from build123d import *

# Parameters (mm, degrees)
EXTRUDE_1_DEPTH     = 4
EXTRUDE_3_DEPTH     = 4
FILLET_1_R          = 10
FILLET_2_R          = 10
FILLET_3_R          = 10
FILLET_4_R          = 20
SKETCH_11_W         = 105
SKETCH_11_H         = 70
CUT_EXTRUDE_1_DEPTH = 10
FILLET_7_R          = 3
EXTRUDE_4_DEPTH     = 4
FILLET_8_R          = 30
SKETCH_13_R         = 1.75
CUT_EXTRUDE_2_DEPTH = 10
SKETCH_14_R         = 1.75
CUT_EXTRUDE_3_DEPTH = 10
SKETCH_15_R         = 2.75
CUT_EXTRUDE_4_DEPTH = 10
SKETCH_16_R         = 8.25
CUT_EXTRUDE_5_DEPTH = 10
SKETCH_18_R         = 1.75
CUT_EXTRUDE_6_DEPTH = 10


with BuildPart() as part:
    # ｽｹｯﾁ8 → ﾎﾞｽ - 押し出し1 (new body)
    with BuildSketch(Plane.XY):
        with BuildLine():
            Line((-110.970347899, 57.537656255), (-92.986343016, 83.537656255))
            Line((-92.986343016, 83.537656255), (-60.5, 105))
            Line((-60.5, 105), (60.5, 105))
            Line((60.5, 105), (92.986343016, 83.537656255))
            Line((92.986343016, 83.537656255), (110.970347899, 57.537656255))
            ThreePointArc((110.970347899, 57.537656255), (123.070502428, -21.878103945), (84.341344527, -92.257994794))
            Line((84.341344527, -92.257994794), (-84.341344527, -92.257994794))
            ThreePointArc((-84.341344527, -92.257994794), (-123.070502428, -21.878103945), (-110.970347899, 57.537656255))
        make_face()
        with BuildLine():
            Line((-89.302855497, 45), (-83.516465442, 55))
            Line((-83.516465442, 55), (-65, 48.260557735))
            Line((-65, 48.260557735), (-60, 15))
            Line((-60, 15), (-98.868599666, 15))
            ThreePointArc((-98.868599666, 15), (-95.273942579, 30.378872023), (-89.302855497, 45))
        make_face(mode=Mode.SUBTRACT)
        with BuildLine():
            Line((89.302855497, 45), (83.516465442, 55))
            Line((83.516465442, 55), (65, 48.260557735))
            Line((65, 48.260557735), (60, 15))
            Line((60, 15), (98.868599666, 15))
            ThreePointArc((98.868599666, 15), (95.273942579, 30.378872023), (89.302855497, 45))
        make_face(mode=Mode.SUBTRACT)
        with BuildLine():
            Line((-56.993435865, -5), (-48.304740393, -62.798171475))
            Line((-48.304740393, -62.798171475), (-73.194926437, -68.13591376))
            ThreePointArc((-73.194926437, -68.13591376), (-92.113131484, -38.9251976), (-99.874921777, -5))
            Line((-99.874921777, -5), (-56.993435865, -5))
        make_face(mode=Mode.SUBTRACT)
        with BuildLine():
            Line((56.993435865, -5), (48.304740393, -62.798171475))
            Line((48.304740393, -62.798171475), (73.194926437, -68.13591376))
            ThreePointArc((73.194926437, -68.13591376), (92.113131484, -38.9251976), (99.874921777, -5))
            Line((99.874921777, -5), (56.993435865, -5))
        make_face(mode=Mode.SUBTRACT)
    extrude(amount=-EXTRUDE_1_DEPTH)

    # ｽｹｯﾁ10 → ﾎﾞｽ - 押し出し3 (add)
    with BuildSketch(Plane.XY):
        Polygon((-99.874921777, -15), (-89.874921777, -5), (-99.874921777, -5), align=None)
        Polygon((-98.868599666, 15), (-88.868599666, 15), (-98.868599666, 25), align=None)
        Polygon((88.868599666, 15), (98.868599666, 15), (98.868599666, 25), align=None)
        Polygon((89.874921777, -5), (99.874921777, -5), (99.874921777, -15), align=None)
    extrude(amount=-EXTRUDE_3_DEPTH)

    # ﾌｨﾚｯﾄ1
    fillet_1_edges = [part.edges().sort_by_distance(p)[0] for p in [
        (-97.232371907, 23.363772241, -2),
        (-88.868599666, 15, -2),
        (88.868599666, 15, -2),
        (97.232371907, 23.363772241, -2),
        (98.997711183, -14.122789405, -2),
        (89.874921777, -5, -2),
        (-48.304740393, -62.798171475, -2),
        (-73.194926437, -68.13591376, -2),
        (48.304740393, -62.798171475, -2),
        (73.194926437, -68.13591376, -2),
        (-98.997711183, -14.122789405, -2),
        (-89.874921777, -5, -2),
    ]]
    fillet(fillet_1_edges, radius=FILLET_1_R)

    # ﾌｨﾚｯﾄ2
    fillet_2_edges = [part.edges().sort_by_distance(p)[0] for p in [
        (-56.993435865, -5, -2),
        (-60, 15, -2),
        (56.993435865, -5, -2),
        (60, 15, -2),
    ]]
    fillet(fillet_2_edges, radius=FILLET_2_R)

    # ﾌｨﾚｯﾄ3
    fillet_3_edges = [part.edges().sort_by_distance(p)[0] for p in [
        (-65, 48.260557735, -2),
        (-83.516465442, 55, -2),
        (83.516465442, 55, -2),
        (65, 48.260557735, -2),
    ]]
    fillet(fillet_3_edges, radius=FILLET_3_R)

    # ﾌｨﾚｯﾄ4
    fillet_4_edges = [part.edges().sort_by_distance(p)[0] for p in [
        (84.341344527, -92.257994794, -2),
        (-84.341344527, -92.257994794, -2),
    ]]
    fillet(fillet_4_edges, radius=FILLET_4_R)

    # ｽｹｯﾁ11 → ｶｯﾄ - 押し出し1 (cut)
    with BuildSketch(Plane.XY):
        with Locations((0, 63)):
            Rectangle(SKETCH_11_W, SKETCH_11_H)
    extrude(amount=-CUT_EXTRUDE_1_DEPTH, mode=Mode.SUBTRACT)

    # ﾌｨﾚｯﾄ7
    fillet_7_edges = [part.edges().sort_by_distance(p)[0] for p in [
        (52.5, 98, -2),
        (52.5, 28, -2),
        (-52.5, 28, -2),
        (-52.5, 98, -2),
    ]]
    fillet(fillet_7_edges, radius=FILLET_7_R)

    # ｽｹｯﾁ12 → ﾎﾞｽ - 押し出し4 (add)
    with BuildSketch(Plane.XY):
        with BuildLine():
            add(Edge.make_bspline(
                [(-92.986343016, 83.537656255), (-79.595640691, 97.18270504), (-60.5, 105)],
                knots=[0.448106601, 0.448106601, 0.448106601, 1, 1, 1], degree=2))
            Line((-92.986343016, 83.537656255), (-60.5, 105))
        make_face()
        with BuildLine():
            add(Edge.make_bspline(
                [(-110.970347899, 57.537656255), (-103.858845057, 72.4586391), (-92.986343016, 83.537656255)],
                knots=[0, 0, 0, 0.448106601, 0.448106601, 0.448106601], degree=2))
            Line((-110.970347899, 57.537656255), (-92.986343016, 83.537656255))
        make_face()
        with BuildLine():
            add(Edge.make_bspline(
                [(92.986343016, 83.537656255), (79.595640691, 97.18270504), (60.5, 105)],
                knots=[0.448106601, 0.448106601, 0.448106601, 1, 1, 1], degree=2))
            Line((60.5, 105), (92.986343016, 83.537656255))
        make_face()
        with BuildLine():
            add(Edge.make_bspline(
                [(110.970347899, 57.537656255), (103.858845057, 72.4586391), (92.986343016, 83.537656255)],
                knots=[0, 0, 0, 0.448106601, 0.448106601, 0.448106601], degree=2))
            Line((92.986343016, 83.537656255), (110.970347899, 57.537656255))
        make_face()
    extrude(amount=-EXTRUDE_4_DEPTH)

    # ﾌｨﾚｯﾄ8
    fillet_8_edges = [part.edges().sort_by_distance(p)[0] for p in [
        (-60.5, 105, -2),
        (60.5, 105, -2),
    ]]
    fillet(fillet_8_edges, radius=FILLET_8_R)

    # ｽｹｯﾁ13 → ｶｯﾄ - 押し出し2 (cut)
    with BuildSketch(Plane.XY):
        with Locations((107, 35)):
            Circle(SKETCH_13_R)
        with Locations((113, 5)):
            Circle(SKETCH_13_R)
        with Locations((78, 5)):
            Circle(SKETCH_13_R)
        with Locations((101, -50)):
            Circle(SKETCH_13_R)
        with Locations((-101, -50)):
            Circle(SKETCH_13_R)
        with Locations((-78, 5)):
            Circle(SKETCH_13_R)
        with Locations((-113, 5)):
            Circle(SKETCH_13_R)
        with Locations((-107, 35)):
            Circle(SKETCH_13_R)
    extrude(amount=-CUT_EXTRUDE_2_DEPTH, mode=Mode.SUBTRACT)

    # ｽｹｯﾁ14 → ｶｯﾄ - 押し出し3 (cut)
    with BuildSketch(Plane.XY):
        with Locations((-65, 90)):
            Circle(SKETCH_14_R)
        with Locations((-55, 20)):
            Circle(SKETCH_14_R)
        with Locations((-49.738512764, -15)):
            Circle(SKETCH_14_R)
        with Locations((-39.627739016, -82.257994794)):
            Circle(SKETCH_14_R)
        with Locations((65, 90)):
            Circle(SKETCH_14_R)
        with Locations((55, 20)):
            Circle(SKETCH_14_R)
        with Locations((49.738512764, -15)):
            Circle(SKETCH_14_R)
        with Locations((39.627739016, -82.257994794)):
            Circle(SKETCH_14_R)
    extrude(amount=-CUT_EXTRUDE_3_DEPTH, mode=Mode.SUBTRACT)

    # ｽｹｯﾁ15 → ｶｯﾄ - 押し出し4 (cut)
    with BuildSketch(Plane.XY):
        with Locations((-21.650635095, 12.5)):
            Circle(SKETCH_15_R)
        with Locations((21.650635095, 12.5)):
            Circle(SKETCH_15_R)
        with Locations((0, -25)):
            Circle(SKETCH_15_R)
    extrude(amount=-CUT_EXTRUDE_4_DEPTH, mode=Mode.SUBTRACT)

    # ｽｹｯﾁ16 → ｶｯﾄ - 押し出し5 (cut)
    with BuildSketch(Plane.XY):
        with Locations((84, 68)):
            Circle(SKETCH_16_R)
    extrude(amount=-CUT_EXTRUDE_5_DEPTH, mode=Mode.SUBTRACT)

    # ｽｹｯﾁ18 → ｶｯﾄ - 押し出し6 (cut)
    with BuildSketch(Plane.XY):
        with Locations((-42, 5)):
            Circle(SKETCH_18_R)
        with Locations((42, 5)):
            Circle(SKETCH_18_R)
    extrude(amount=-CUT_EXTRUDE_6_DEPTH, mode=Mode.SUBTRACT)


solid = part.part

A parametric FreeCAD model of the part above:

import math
import FreeCAD as App
import Part
import Sketcher

V = App.Vector
Q = App.Units.Quantity


def edges_at(feature, points):
    """Names of the edges that pass closest to the given points."""
    edges = feature.Shape.Edges
    near = lambda p: min(range(len(edges)), key=lambda i: edges[i].distToShape(Part.Vertex(*p))[0])
    return sorted({f"Edge{near(p) + 1}" for p in points})

doc = App.newDocument("Part")
params = doc.addObject("Spreadsheet::Sheet", "Params")
for row, (alias, value) in enumerate([
    ("sketch1_radius", "125 mm"),
    ("sketch1_radius2", "100 mm"),
    ("sketch1_width", "121 mm"),
    ("pad1_length", "4 mm"),
    ("sketch2_width", "10 mm"),
    ("pad2_length", "4 mm"),
    ("fillet_radius", "10 mm"),
    ("fillet2_radius", "10 mm"),
    ("fillet3_radius", "10 mm"),
    ("fillet4_radius", "20 mm"),
    ("sketch3_width", "105 mm"),
    ("sketch3_height", "70 mm"),
    ("pocket1_length", "10 mm"),
    ("fillet5_radius", "3 mm"),
    ("pad3_length", "4 mm"),
    ("fillet6_radius", "30 mm"),
    ("sketch5_diameter", "3.5 mm"),
    ("pocket2_length", "10 mm"),
    ("sketch6_diameter", "3.5 mm"),
    ("pocket3_length", "10 mm"),
    ("sketch7_diameter", "5.5 mm"),
    ("pocket4_length", "10 mm"),
    ("sketch8_diameter", "16.5 mm"),
    ("pocket5_length", "10 mm"),
    ("sketch9_diameter", "3.5 mm"),
    ("pocket6_length", "10 mm"),
], start=1):
    params.set(f"A{row}", alias)
    params.set(f"B{row}", "=" + value)
    params.setAlias(f"B{row}", alias)

body = doc.addObject("PartDesign::Body", "Body")

# Sketch on XY plane
sketch1 = doc.addObject("Sketcher::SketchObject", "Sketch")
body.addObject(sketch1)
sketch1.AttachmentSupport = (doc.XY_Plane, [""])
sketch1.MapMode = "FlatFace"
sketch1.addGeometry([
    Part.LineSegment(V(-93, 84, 0), V(-111, 58, 0)),  # 0
    Part.ArcOfCircle(Part.Circle(V(0, 0, 0), V(0, 0, 1), 125), math.radians(153), math.radians(228)),  # 1
    Part.LineSegment(V(-84, -92, 0), V(84, -92, 0)),  # 2
    Part.ArcOfCircle(Part.Circle(V(0, 0, 0), V(0, 0, 1), 125), math.radians(-48), math.radians(27)),  # 3
    Part.LineSegment(V(111, 58, 0), V(93, 84, 0)),  # 4
    Part.LineSegment(V(93, 84, 0), V(60, 105, 0)),  # 5
    Part.LineSegment(V(60, 105, 0), V(-60, 105, 0)),  # 6
    Part.LineSegment(V(-60, 105, 0), V(-93, 84, 0)),  # 7
    Part.LineSegment(V(57, -5, 0), V(100, -5, 0)),  # 8
    Part.ArcOfCircle(Part.Circle(V(0, 0, 0), V(0, 0, 1), 100), math.radians(-43), math.radians(-3)),  # 9
    Part.LineSegment(V(73, -68, 0), V(48, -63, 0)),  # 10
    Part.LineSegment(V(48, -63, 0), V(57, -5, 0)),  # 11
    Part.LineSegment(V(-57, -5, 0), V(-48, -63, 0)),  # 12
    Part.LineSegment(V(-48, -63, 0), V(-73, -68, 0)),  # 13
    Part.ArcOfCircle(Part.Circle(V(0, 0, 0), V(0, 0, 1), 100), math.radians(-177), math.radians(-137)),  # 14
    Part.LineSegment(V(-100, -5, 0), V(-57, -5, 0)),  # 15
    Part.ArcOfCircle(Part.Circle(V(0, 0, 0), V(0, 0, 1), 100), math.radians(8.63), math.radians(26.74)),  # 16
    Part.LineSegment(V(99, 15, 0), V(60, 15, 0)),  # 17
    Part.LineSegment(V(60, 15, 0), V(65, 48, 0)),  # 18
    Part.LineSegment(V(65, 48, 0), V(84, 55, 0)),  # 19
    Part.LineSegment(V(84, 55, 0), V(89, 45, 0)),  # 20
    Part.LineSegment(V(-89, 45, 0), V(-84, 55, 0)),  # 21
    Part.LineSegment(V(-84, 55, 0), V(-65, 48, 0)),  # 22
    Part.LineSegment(V(-65, 48, 0), V(-60, 15, 0)),  # 23
    Part.LineSegment(V(-60, 15, 0), V(-99, 15, 0)),  # 24
    Part.ArcOfCircle(Part.Circle(V(0, 0, 0), V(0, 0, 1), 100), math.radians(153.26), math.radians(171.37)),  # 25
], False)
sketch1.addConstraint([
    Sketcher.Constraint("Coincident", 0, 2, 1, 1),
    Sketcher.Constraint("Coincident", 1, 2, 2, 1),
    Sketcher.Constraint("Coincident", 2, 2, 3, 1),
    Sketcher.Constraint("Coincident", 3, 2, 4, 1),
    Sketcher.Constraint("Coincident", 4, 2, 5, 1),
    Sketcher.Constraint("Coincident", 5, 2, 6, 1),
    Sketcher.Constraint("Coincident", 6, 2, 7, 1),
    Sketcher.Constraint("Coincident", 7, 2, 0, 1),
    Sketcher.Constraint("Coincident", 8, 2, 9, 2),
    Sketcher.Constraint("Coincident", 9, 1, 10, 1),
    Sketcher.Constraint("Coincident", 10, 2, 11, 1),
    Sketcher.Constraint("Coincident", 11, 2, 8, 1),
    Sketcher.Constraint("Coincident", 12, 2, 13, 1),
    Sketcher.Constraint("Coincident", 13, 2, 14, 2),
    Sketcher.Constraint("Coincident", 14, 1, 15, 1),
    Sketcher.Constraint("Coincident", 15, 2, 12, 1),
    Sketcher.Constraint("Coincident", 16, 1, 17, 1),
    Sketcher.Constraint("Coincident", 17, 2, 18, 1),
    Sketcher.Constraint("Coincident", 18, 2, 19, 1),
    Sketcher.Constraint("Coincident", 19, 2, 20, 1),
    Sketcher.Constraint("Coincident", 20, 2, 16, 2),
    Sketcher.Constraint("Coincident", 21, 2, 22, 1),
    Sketcher.Constraint("Coincident", 22, 2, 23, 1),
    Sketcher.Constraint("Coincident", 23, 2, 24, 1),
    Sketcher.Constraint("Coincident", 24, 2, 25, 2),
    Sketcher.Constraint("Coincident", 25, 1, 21, 1),
    Sketcher.Constraint("Horizontal", 2),
    Sketcher.Constraint("Horizontal", 6),
    Sketcher.Constraint("Horizontal", 8),
    Sketcher.Constraint("Horizontal", 15),
    Sketcher.Constraint("Horizontal", 17),
    Sketcher.Constraint("Horizontal", 24),
    Sketcher.Constraint("Coincident", 1, 3, -1, 1),
    Sketcher.Constraint("Coincident", 3, 3, -1, 1),
    Sketcher.Constraint("Coincident", 9, 3, -1, 1),
    Sketcher.Constraint("Coincident", 14, 3, -1, 1),
    Sketcher.Constraint("Coincident", 16, 3, -1, 1),
    Sketcher.Constraint("Coincident", 25, 3, -1, 1),
    Sketcher.Constraint("Equal", 1, 3),
    Sketcher.Constraint("Equal", 9, 14),
    Sketcher.Constraint("Equal", 14, 16),
    Sketcher.Constraint("Equal", 16, 25),
    Sketcher.Constraint("Symmetric", 4, 2, 7, 2, -2),
    Sketcher.Constraint("Symmetric", 10, 2, 12, 2, -2),
    Sketcher.Constraint("Symmetric", 11, 2, 15, 2, -2),
    Sketcher.Constraint("Symmetric", 19, 2, 21, 2, -2),
    Sketcher.Constraint("Symmetric", 18, 2, 22, 2, -2),
    Sketcher.Constraint("Symmetric", 17, 2, 23, 2, -2),
    Sketcher.Constraint("Parallel", 11, 18),
    Sketcher.Constraint("Horizontal", 0, 2, 3, 2),
    Sketcher.Constraint("Horizontal", 9, 1, 13, 2),
    Sketcher.Constraint("Horizontal", 20, 2, 25, 1),
    Sketcher.Constraint("Equal", 5, 7),
    Sketcher.Constraint("Radius", 1, Q("125 mm")),
    Sketcher.Constraint("Radius", 9, Q("100 mm")),
    Sketcher.Constraint("DistanceX", 6, 2, 6, 1, Q("121 mm")),
    Sketcher.Constraint("Angle", 19, Q("20 deg")),
    Sketcher.Constraint("DistanceY", -1, 1, 5, 2, Q("105 mm")),
    Sketcher.Constraint("DistanceY", 8, 2, -1, 1, Q("5 mm")),
    Sketcher.Constraint("DistanceY", -1, 1, 16, 1, Q("15 mm")),
    Sketcher.Constraint("DistanceX", -1, 1, 17, 2, Q("60 mm")),
    Sketcher.Constraint("DistanceX", -1, 1, 18, 2, Q("65 mm")),
    Sketcher.Constraint("DistanceY", -1, 1, 19, 2, Q("55 mm")),
    Sketcher.Constraint("DistanceY", -1, 1, 20, 2, Q("45 mm")),
    Sketcher.Constraint("DistanceY", 3, 2, 4, 2, Q("26 mm")),
    Sketcher.Constraint("Distance", 11, Q("58.447601 mm")),
    Sketcher.Constraint("DistanceX", 2, 1, 2, 2, Q("168.682689 mm")),
    Sketcher.Constraint("DistanceY", 18, 2, 4, 2, Q("35.277099 mm")),
    Sketcher.Constraint("Distance", 18, Q("33.634279 mm")),
    Sketcher.Constraint("DistanceX", 8, 1, 8, 2, Q("42.881486 mm")),
    Sketcher.Constraint("DistanceX", 4, 2, 8, 2, Q("6.888579 mm")),
    Sketcher.Constraint("DistanceX", 9, 1, 2, 2, Q("11.146418 mm")),
])
sketch1.setExpression("Constraints[53]", "Params.sketch1_radius")
sketch1.setExpression("Constraints[54]", "Params.sketch1_radius2")
sketch1.setExpression("Constraints[55]", "Params.sketch1_width")
pad1 = doc.addObject("PartDesign::Pad", "Pad")
body.addObject(pad1)
pad1.Profile = sketch1
pad1.setExpression("Length", "Params.pad1_length")
pad1.Reversed = True

# Sketch on XY plane
sketch2 = doc.addObject("Sketcher::SketchObject", "Sketch001")
body.addObject(sketch2)
sketch2.AttachmentSupport = (doc.XY_Plane, [""])
sketch2.MapMode = "FlatFace"
sketch2.addGeometry([
    Part.LineSegment(V(-100, -15, 0), V(-90, -5, 0)),  # 0
    Part.LineSegment(V(-90, -5, 0), V(-100, -5, 0)),  # 1
    Part.LineSegment(V(-100, -5, 0), V(-100, -15, 0)),  # 2
    Part.LineSegment(V(-99, 15, 0), V(-89, 15, 0)),  # 3
    Part.LineSegment(V(-89, 15, 0), V(-99, 25, 0)),  # 4
    Part.LineSegment(V(-99, 25, 0), V(-99, 15, 0)),  # 5
    Part.LineSegment(V(89, 15, 0), V(99, 15, 0)),  # 6
    Part.LineSegment(V(99, 15, 0), V(99, 25, 0)),  # 7
    Part.LineSegment(V(99, 25, 0), V(89, 15, 0)),  # 8
    Part.LineSegment(V(100, -5, 0), V(90, -5, 0)),  # 9
    Part.LineSegment(V(90, -5, 0), V(100, -15, 0)),  # 10
    Part.LineSegment(V(100, -15, 0), V(100, -5, 0)),  # 11
], False)
sketch2.addConstraint([
    Sketcher.Constraint("Coincident", 0, 2, 1, 1),
    Sketcher.Constraint("Coincident", 1, 2, 2, 1),
    Sketcher.Constraint("Coincident", 2, 2, 0, 1),
    Sketcher.Constraint("Coincident", 3, 2, 4, 1),
    Sketcher.Constraint("Coincident", 4, 2, 5, 1),
    Sketcher.Constraint("Coincident", 5, 2, 3, 1),
    Sketcher.Constraint("Coincident", 6, 2, 7, 1),
    Sketcher.Constraint("Coincident", 7, 2, 8, 1),
    Sketcher.Constraint("Coincident", 8, 2, 6, 1),
    Sketcher.Constraint("Coincident", 9, 2, 10, 1),
    Sketcher.Constraint("Coincident", 10, 2, 11, 1),
    Sketcher.Constraint("Coincident", 11, 2, 9, 1),
    Sketcher.Constraint("Horizontal", 1),
    Sketcher.Constraint("Vertical", 2),
    Sketcher.Constraint("Horizontal", 3),
    Sketcher.Constraint("Vertical", 5),
    Sketcher.Constraint("Horizontal", 6),
    Sketcher.Constraint("Vertical", 7),
    Sketcher.Constraint("Horizontal", 9),
    Sketcher.Constraint("Vertical", 11),
    Sketcher.Constraint("Symmetric", 5, 2, 6, 2, -2),
    Sketcher.Constraint("Symmetric", 0, 2, 9, 2, -2),
    Sketcher.Constraint("Symmetric", 2, 2, 10, 2, -2),
    Sketcher.Constraint("Perpendicular", 0, 4),
    Sketcher.Constraint("Perpendicular", 4, 8),
    Sketcher.Constraint("Perpendicular", 8, 10),
    Sketcher.Constraint("Horizontal", 4, 2, 7, 2),
    Sketcher.Constraint("Equal", 1, 3),
    Sketcher.Constraint("DistanceX", 1, 2, 1, 1, Q("10 mm")),
    Sketcher.Constraint("DistanceY", 0, 2, -1, 1, Q("5 mm")),
    Sketcher.Constraint("DistanceY", -1, 1, 3, 2, Q("15 mm")),
    Sketcher.Constraint("DistanceX", 3, 2, -1, 1, Q("88.8686 mm")),
    Sketcher.Constraint("DistanceX", 0, 2, -1, 1, Q("89.874922 mm")),
])
sketch2.setExpression("Constraints[28]", "Params.sketch2_width")
pad2 = doc.addObject("PartDesign::Pad", "Pad001")
body.addObject(pad2)
pad2.Profile = sketch2
pad2.setExpression("Length", "Params.pad2_length")
pad2.Reversed = True
doc.recompute()

fillet = doc.addObject("PartDesign::Fillet", "Fillet")
body.addObject(fillet)
fillet.Base = (pad2, edges_at(pad2, [
    (-97.232, 23.364, -2),
    (-88.869, 15, -2),
    (88.869, 15, -2),
    (97.232, 23.364, -2),
    (98.998, -14.123, -2),
    (89.875, -5, -2),
    (-48.305, -62.798, -2),
    (-73.195, -68.136, -2),
    (48.305, -62.798, -2),
    (73.195, -68.136, -2),
    (-98.998, -14.123, -2),
    (-89.875, -5, -2),
]))
fillet.setExpression("Radius", "Params.fillet_radius")
doc.recompute()

fillet2 = doc.addObject("PartDesign::Fillet", "Fillet001")
body.addObject(fillet2)
fillet2.Base = (fillet, edges_at(fillet, [
    (-56.993, -5, -2),
    (-60, 15, -2),
    (56.993, -5, -2),
    (60, 15, -2),
]))
fillet2.setExpression("Radius", "Params.fillet2_radius")
doc.recompute()

fillet3 = doc.addObject("PartDesign::Fillet", "Fillet002")
body.addObject(fillet3)
fillet3.Base = (fillet2, edges_at(fillet2, [
    (-65, 48.261, -2),
    (-83.516, 55, -2),
    (83.516, 55, -2),
    (65, 48.261, -2),
]))
fillet3.setExpression("Radius", "Params.fillet3_radius")
doc.recompute()

fillet4 = doc.addObject("PartDesign::Fillet", "Fillet003")
body.addObject(fillet4)
fillet4.Base = (fillet3, edges_at(fillet3, [(84.341, -92.258, -2), (-84.341, -92.258, -2)]))
fillet4.setExpression("Radius", "Params.fillet4_radius")

# Sketch on XY plane
sketch3 = doc.addObject("Sketcher::SketchObject", "Sketch002")
body.addObject(sketch3)
sketch3.AttachmentSupport = (doc.XY_Plane, [""])
sketch3.MapMode = "FlatFace"
sketch3.addGeometry([
    Part.LineSegment(V(-52, 98, 0), V(-52, 28, 0)),
    Part.LineSegment(V(-52, 28, 0), V(52, 28, 0)),
    Part.LineSegment(V(52, 28, 0), V(52, 98, 0)),
    Part.LineSegment(V(52, 98, 0), V(-52, 98, 0)),
], False)
sketch3.addConstraint([
    Sketcher.Constraint("Coincident", 0, 2, 1, 1),
    Sketcher.Constraint("Coincident", 1, 2, 2, 1),
    Sketcher.Constraint("Coincident", 2, 2, 3, 1),
    Sketcher.Constraint("Coincident", 3, 2, 0, 1),
    Sketcher.Constraint("Vertical", 0),
    Sketcher.Constraint("Horizontal", 1),
    Sketcher.Constraint("Vertical", 2),
    Sketcher.Constraint("Horizontal", 3),
    Sketcher.Constraint("DistanceX", 1, 1, 1, 2, Q("105 mm")),
    Sketcher.Constraint("DistanceY", 0, 2, 0, 1, Q("70 mm")),
    Sketcher.Constraint("DistanceY", -1, 1, 0, 2, Q("28 mm")),
    Sketcher.Constraint("DistanceX", 0, 2, -1, 1, Q("52.5 mm")),
])
sketch3.setExpression("Constraints[8]", "Params.sketch3_width")
sketch3.setExpression("Constraints[9]", "Params.sketch3_height")
pocket1 = doc.addObject("PartDesign::Pocket", "Pocket")
body.addObject(pocket1)
pocket1.Profile = sketch3
pocket1.setExpression("Length", "Params.pocket1_length")
doc.recompute()

fillet5 = doc.addObject("PartDesign::Fillet", "Fillet004")
body.addObject(fillet5)
fillet5.Base = (pocket1, edges_at(pocket1, [
    (52.5, 98, -2),
    (52.5, 28, -2),
    (-52.5, 28, -2),
    (-52.5, 98, -2),
]))
fillet5.setExpression("Radius", "Params.fillet5_radius")

# Sketch on XY plane
sketch4 = doc.addObject("Sketcher::SketchObject", "Sketch003")
body.addObject(sketch4)
sketch4.AttachmentSupport = (doc.XY_Plane, [""])
sketch4.MapMode = "FlatFace"
sketch4.addGeometry([
    Part.BSplineCurve([V(-92.986343, 83.537656, 0), V(-79.595641, 97.182705, 0), V(-60.5, 105, 0)], [3, 3], [0.448106601, 1], False, 2, [1, 1, 1], False),  # 0
    Part.LineSegment(V(-92.986343, 83.537656, 0), V(-60.5, 105, 0)),  # 1
    Part.BSplineCurve([V(-110.970348, 57.537656, 0), V(-103.858845, 72.458639, 0), V(-92.986343, 83.537656, 0)], [3, 3], [0, 0.448106601], False, 2, [1, 1, 1], False),  # 2
    Part.LineSegment(V(-110.970348, 57.537656, 0), V(-92.986343, 83.537656, 0)),  # 3
    Part.BSplineCurve([V(92.986343, 83.537656, 0), V(79.595641, 97.182705, 0), V(60.5, 105, 0)], [3, 3], [0.448106601, 1], False, 2, [1, 1, 1], False),  # 4
    Part.LineSegment(V(60.5, 105, 0), V(92.986343, 83.537656, 0)),  # 5
    Part.BSplineCurve([V(110.970348, 57.537656, 0), V(103.858845, 72.458639, 0), V(92.986343, 83.537656, 0)], [3, 3], [0, 0.448106601], False, 2, [1, 1, 1], False),  # 6
    Part.LineSegment(V(92.986343, 83.537656, 0), V(110.970348, 57.537656, 0)),  # 7
], False)
sketch4.addConstraint([
    Sketcher.Constraint("Block", 0),
    Sketcher.Constraint("Block", 2),
    Sketcher.Constraint("Block", 4),
    Sketcher.Constraint("Block", 6),
    Sketcher.Constraint("Coincident", 0, 1, 1, 1),
    Sketcher.Constraint("Coincident", 1, 2, 0, 2),
    Sketcher.Constraint("Coincident", 2, 1, 3, 1),
    Sketcher.Constraint("Coincident", 3, 2, 2, 2),
    Sketcher.Constraint("Coincident", 4, 1, 5, 2),
    Sketcher.Constraint("Coincident", 5, 1, 4, 2),
    Sketcher.Constraint("Coincident", 6, 1, 7, 2),
    Sketcher.Constraint("Coincident", 7, 1, 6, 2),
])
pad3 = doc.addObject("PartDesign::Pad", "Pad002")
body.addObject(pad3)
pad3.Profile = sketch4
pad3.setExpression("Length", "Params.pad3_length")
pad3.Reversed = True
doc.recompute()

fillet6 = doc.addObject("PartDesign::Fillet", "Fillet005")
body.addObject(fillet6)
fillet6.Base = (pad3, edges_at(pad3, [(-60.5, 105, -2), (60.5, 105, -2)]))
fillet6.setExpression("Radius", "Params.fillet6_radius")

# Sketch on XY plane
sketch5 = doc.addObject("Sketcher::SketchObject", "Sketch004")
body.addObject(sketch5)
sketch5.AttachmentSupport = (doc.XY_Plane, [""])
sketch5.MapMode = "FlatFace"
sketch5.addGeometry([
    Part.Circle(V(107, 35, 0), V(0, 0, 1), 1.8),  # 0
    Part.Circle(V(113, 5, 0), V(0, 0, 1), 1.8),  # 1
    Part.Circle(V(78, 5, 0), V(0, 0, 1), 1.8),  # 2
    Part.Circle(V(101, -50, 0), V(0, 0, 1), 1.8),  # 3
    Part.Circle(V(-101, -50, 0), V(0, 0, 1), 1.8),  # 4
    Part.Circle(V(-78, 5, 0), V(0, 0, 1), 1.8),  # 5
    Part.Circle(V(-113, 5, 0), V(0, 0, 1), 1.8),  # 6
    Part.Circle(V(-107, 35, 0), V(0, 0, 1), 1.8),  # 7
], False)
sketch5.addConstraint([
    Sketcher.Constraint("Equal", 0, 1),
    Sketcher.Constraint("Equal", 1, 2),
    Sketcher.Constraint("Equal", 2, 3),
    Sketcher.Constraint("Equal", 3, 4),
    Sketcher.Constraint("Equal", 4, 5),
    Sketcher.Constraint("Equal", 5, 6),
    Sketcher.Constraint("Equal", 6, 7),
    Sketcher.Constraint("Symmetric", 3, 3, 4, 3, -2),
    Sketcher.Constraint("Symmetric", 2, 3, 5, 3, -2),
    Sketcher.Constraint("Symmetric", 1, 3, 6, 3, -2),
    Sketcher.Constraint("Symmetric", 0, 3, 7, 3, -2),
    Sketcher.Constraint("Horizontal", 1, 3, 2, 3),
    Sketcher.Constraint("Diameter", 0, Q("3.5 mm")),
    Sketcher.Constraint("DistanceX", -1, 1, 0, 3, Q("107 mm")),
    Sketcher.Constraint("DistanceY", -1, 1, 0, 3, Q("35 mm")),
    Sketcher.Constraint("DistanceX", -1, 1, 1, 3, Q("113 mm")),
    Sketcher.Constraint("DistanceY", -1, 1, 1, 3, Q("5 mm")),
    Sketcher.Constraint("DistanceX", -1, 1, 2, 3, Q("78 mm")),
    Sketcher.Constraint("DistanceX", -1, 1, 3, 3, Q("101 mm")),
    Sketcher.Constraint("DistanceY", 3, 3, -1, 1, Q("50 mm")),
])
sketch5.setExpression("Constraints[12]", "Params.sketch5_diameter")
pocket2 = doc.addObject("PartDesign::Pocket", "Pocket001")
body.addObject(pocket2)
pocket2.Profile = sketch5
pocket2.setExpression("Length", "Params.pocket2_length")

# Sketch on XY plane
sketch6 = doc.addObject("Sketcher::SketchObject", "Sketch005")
body.addObject(sketch6)
sketch6.AttachmentSupport = (doc.XY_Plane, [""])
sketch6.MapMode = "FlatFace"
sketch6.addGeometry([
    Part.Circle(V(-65, 90, 0), V(0, 0, 1), 1.8),  # 0
    Part.Circle(V(-55, 20, 0), V(0, 0, 1), 1.8),  # 1
    Part.Circle(V(-49.7, -15, 0), V(0, 0, 1), 1.8),  # 2
    Part.Circle(V(-39.6, -82.3, 0), V(0, 0, 1), 1.8),  # 3
    Part.Circle(V(65, 90, 0), V(0, 0, 1), 1.8),  # 4
    Part.Circle(V(55, 20, 0), V(0, 0, 1), 1.8),  # 5
    Part.Circle(V(49.7, -15, 0), V(0, 0, 1), 1.8),  # 6
    Part.Circle(V(39.6, -82.3, 0), V(0, 0, 1), 1.8),  # 7
], False)
sketch6.addConstraint([
    Sketcher.Constraint("Equal", 0, 1),
    Sketcher.Constraint("Equal", 1, 2),
    Sketcher.Constraint("Equal", 2, 3),
    Sketcher.Constraint("Equal", 3, 4),
    Sketcher.Constraint("Equal", 4, 5),
    Sketcher.Constraint("Equal", 5, 6),
    Sketcher.Constraint("Equal", 6, 7),
    Sketcher.Constraint("Symmetric", 0, 3, 4, 3, -2),
    Sketcher.Constraint("Symmetric", 1, 3, 5, 3, -2),
    Sketcher.Constraint("Symmetric", 2, 3, 6, 3, -2),
    Sketcher.Constraint("Symmetric", 3, 3, 7, 3, -2),
    Sketcher.Constraint("Diameter", 0, Q("3.5 mm")),
    Sketcher.Constraint("DistanceX", 0, 3, -1, 1, Q("65 mm")),
    Sketcher.Constraint("DistanceY", -1, 1, 0, 3, Q("90 mm")),
    Sketcher.Constraint("DistanceX", 1, 3, -1, 1, Q("55 mm")),
    Sketcher.Constraint("DistanceY", -1, 1, 1, 3, Q("20 mm")),
    Sketcher.Constraint("DistanceY", 2, 3, -1, 1, Q("15 mm")),
    Sketcher.Constraint("DistanceX", 3, 3, -1, 1, Q("39.627739 mm")),
    Sketcher.Constraint("DistanceX", 3, 3, 6, 3, Q("89.366252 mm")),
    Sketcher.Constraint("DistanceY", 3, 3, -1, 1, Q("82.257995 mm")),
])
sketch6.setExpression("Constraints[11]", "Params.sketch6_diameter")
pocket3 = doc.addObject("PartDesign::Pocket", "Pocket002")
body.addObject(pocket3)
pocket3.Profile = sketch6
pocket3.setExpression("Length", "Params.pocket3_length")

# Sketch on XY plane
sketch7 = doc.addObject("Sketcher::SketchObject", "Sketch006")
body.addObject(sketch7)
sketch7.AttachmentSupport = (doc.XY_Plane, [""])
sketch7.MapMode = "FlatFace"
sketch7.addGeometry([
    Part.Circle(V(-21.7, 12.5, 0), V(0, 0, 1), 2.8),
    Part.Circle(V(21.7, 12.5, 0), V(0, 0, 1), 2.8),
    Part.Circle(V(0, -25, 0), V(0, 0, 1), 2.8),
], False)
sketch7.addConstraint([
    Sketcher.Constraint("Equal", 0, 1),
    Sketcher.Constraint("Equal", 1, 2),
    Sketcher.Constraint("Symmetric", 0, 3, 1, 3, -2),
    Sketcher.Constraint("PointOnObject", 2, 3, -2),
    Sketcher.Constraint("Diameter", 0, Q("5.5 mm")),
    Sketcher.Constraint("DistanceY", 2, 3, -1, 1, Q("25 mm")),
    Sketcher.Constraint("DistanceY", -1, 1, 0, 3, Q("12.5 mm")),
    Sketcher.Constraint("DistanceX", 0, 3, 1, 3, Q("43.30127 mm")),
])
sketch7.setExpression("Constraints[4]", "Params.sketch7_diameter")
pocket4 = doc.addObject("PartDesign::Pocket", "Pocket003")
body.addObject(pocket4)
pocket4.Profile = sketch7
pocket4.setExpression("Length", "Params.pocket4_length")

# Sketch on XY plane
sketch8 = doc.addObject("Sketcher::SketchObject", "Sketch007")
body.addObject(sketch8)
sketch8.AttachmentSupport = (doc.XY_Plane, [""])
sketch8.MapMode = "FlatFace"
sketch8.addGeometry(Part.Circle(V(84, 68, 0), V(0, 0, 1), 8), False)
sketch8.addConstraint([
    Sketcher.Constraint("Diameter", 0, Q("16.5 mm")),
    Sketcher.Constraint("DistanceX", -1, 1, 0, 3, Q("84 mm")),
    Sketcher.Constraint("DistanceY", -1, 1, 0, 3, Q("68 mm")),
])
sketch8.setExpression("Constraints[0]", "Params.sketch8_diameter")
pocket5 = doc.addObject("PartDesign::Pocket", "Pocket004")
body.addObject(pocket5)
pocket5.Profile = sketch8
pocket5.setExpression("Length", "Params.pocket5_length")

# Sketch on XY plane
sketch9 = doc.addObject("Sketcher::SketchObject", "Sketch008")
body.addObject(sketch9)
sketch9.AttachmentSupport = (doc.XY_Plane, [""])
sketch9.MapMode = "FlatFace"
sketch9.addGeometry([
    Part.Circle(V(-42, 5, 0), V(0, 0, 1), 1.8),
    Part.Circle(V(42, 5, 0), V(0, 0, 1), 1.8),
], False)
sketch9.addConstraint([
    Sketcher.Constraint("Equal", 0, 1),
    Sketcher.Constraint("Symmetric", 0, 3, 1, 3, -2),
    Sketcher.Constraint("Diameter", 0, Q("3.5 mm")),
    Sketcher.Constraint("DistanceX", 0, 3, -1, 1, Q("42 mm")),
    Sketcher.Constraint("DistanceY", -1, 1, 0, 3, Q("5 mm")),
])
sketch9.setExpression("Constraints[2]", "Params.sketch9_diameter")
pocket6 = doc.addObject("PartDesign::Pocket", "Pocket005")
body.addObject(pocket6)
pocket6.Profile = sketch9
pocket6.setExpression("Length", "Params.pocket6_length")

doc.recompute()
